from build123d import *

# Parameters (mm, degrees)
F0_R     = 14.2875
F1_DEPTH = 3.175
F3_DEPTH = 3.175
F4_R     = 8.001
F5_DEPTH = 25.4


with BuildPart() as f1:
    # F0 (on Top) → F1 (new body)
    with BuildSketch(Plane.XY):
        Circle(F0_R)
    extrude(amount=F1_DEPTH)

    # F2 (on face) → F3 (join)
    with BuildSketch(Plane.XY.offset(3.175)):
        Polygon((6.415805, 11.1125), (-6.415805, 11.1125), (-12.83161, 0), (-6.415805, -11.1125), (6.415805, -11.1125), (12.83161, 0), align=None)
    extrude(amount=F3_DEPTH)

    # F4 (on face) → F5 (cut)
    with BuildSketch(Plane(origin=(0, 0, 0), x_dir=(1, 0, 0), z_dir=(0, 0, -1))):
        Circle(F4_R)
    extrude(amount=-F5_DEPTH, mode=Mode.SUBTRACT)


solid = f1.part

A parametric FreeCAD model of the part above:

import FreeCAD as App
import Part
import Sketcher
Q = App.Units.Quantity

doc = App.newDocument("Part")
body = doc.addObject("PartDesign::Body", "Body")

sketch1 = body.newObject("Sketcher::SketchObject", "Sketch")
sketch1.AttachmentSupport = (doc.getObject("XY_Plane"), [""])
sketch1.MapMode = "FlatFace"
sketch1.addGeometry(Part.Circle(App.Vector(0, 0, 0), App.Vector(0, 0, 1), 14), False)
sketch1.addConstraint([
    Sketcher.Constraint("Coincident", 0, 3, -1, 1),
    Sketcher.Constraint("Diameter", 0, Q("1.125 in")),
])
pad1 = body.newObject("PartDesign::Pad", "Pad")
pad1.Profile = sketch1
pad1.Length = Q("0.125 in")

sketch2 = body.newObject("Sketcher::SketchObject", "Sketch001")
sketch2.AttachmentSupport = (doc.getObject("XY_Plane"), [""])
sketch2.MapMode = "FlatFace"
sketch2.AttachmentOffset = App.Placement(App.Vector(0, 0, 0.125 * 25.4), App.Rotation())
sketch2.addGeometry([
    Part.LineSegment(App.Vector(6, 11, 0), App.Vector(-6, 11, 0)),
    Part.LineSegment(App.Vector(-6, 11, 0), App.Vector(-13, 0, 0)),
    Part.LineSegment(App.Vector(-13, 0, 0), App.Vector(-6, -11, 0)),
    Part.LineSegment(App.Vector(-6, -11, 0), App.Vector(6, -11, 0)),
    Part.LineSegment(App.Vector(6, -11, 0), App.Vector(13, 0, 0)),
    Part.LineSegment(App.Vector(13, 0, 0), App.Vector(6, 11, 0)),
], False)
sketch2.addConstraint([
    Sketcher.Constraint("Coincident", 0, 2, 1, 1),
    Sketcher.Constraint("Coincident", 1, 2, 2, 1),
    Sketcher.Constraint("Coincident", 2, 2, 3, 1),
    Sketcher.Constraint("Coincident", 3, 2, 4, 1),
    Sketcher.Constraint("Coincident", 4, 2, 5, 1),
    Sketcher.Constraint("Coincident", 5, 2, 0, 1),
    Sketcher.Constraint("Horizontal", 0),
    Sketcher.Constraint("Horizontal", 3),
    Sketcher.Constraint("Symmetric", 0, 2, 3, 2, -1, 1),
    Sketcher.Constraint("Symmetric", 1, 2, 4, 2, -1, 1),
    Sketcher.Constraint("PointOnObject", 1, 2, -1),
    Sketcher.Constraint("Parallel", 2, 5),
    Sketcher.Constraint("Vertical", 0, 2, 2, 2),
    Sketcher.Constraint("Angle", 1, Q("-120.000001 deg")),
    Sketcher.Constraint("DistanceY", -1, 1, 0, 2, Q("0.4375 in")),
    Sketcher.Constraint("DistanceX", 0, 2, 0, 1, 12.83161),
])
pad2 = body.newObject("PartDesign::Pad", "Pad001")
pad2.Profile = sketch2
pad2.Length = Q("0.125 in")

sketch3 = body.newObject("Sketcher::SketchObject", "Sketch002")
sketch3.AttachmentSupport = (doc.getObject("XY_Plane"), [""])
sketch3.MapMode = "FlatFace"
sketch3.addGeometry(Part.Circle(App.Vector(0, 0, 0), App.Vector(0, 0, 1), 8), False)
sketch3.addConstraint([
    Sketcher.Constraint("Coincident", 0, 3, -1, 1),
    Sketcher.Constraint("Diameter", 0, Q("0.63 in")),
])
pocket1 = body.newObject("PartDesign::Pocket", "Pocket")
pocket1.Profile = sketch3
pocket1.Length = Q("1 in")
pocket1.Reversed = True

doc.recompute()
